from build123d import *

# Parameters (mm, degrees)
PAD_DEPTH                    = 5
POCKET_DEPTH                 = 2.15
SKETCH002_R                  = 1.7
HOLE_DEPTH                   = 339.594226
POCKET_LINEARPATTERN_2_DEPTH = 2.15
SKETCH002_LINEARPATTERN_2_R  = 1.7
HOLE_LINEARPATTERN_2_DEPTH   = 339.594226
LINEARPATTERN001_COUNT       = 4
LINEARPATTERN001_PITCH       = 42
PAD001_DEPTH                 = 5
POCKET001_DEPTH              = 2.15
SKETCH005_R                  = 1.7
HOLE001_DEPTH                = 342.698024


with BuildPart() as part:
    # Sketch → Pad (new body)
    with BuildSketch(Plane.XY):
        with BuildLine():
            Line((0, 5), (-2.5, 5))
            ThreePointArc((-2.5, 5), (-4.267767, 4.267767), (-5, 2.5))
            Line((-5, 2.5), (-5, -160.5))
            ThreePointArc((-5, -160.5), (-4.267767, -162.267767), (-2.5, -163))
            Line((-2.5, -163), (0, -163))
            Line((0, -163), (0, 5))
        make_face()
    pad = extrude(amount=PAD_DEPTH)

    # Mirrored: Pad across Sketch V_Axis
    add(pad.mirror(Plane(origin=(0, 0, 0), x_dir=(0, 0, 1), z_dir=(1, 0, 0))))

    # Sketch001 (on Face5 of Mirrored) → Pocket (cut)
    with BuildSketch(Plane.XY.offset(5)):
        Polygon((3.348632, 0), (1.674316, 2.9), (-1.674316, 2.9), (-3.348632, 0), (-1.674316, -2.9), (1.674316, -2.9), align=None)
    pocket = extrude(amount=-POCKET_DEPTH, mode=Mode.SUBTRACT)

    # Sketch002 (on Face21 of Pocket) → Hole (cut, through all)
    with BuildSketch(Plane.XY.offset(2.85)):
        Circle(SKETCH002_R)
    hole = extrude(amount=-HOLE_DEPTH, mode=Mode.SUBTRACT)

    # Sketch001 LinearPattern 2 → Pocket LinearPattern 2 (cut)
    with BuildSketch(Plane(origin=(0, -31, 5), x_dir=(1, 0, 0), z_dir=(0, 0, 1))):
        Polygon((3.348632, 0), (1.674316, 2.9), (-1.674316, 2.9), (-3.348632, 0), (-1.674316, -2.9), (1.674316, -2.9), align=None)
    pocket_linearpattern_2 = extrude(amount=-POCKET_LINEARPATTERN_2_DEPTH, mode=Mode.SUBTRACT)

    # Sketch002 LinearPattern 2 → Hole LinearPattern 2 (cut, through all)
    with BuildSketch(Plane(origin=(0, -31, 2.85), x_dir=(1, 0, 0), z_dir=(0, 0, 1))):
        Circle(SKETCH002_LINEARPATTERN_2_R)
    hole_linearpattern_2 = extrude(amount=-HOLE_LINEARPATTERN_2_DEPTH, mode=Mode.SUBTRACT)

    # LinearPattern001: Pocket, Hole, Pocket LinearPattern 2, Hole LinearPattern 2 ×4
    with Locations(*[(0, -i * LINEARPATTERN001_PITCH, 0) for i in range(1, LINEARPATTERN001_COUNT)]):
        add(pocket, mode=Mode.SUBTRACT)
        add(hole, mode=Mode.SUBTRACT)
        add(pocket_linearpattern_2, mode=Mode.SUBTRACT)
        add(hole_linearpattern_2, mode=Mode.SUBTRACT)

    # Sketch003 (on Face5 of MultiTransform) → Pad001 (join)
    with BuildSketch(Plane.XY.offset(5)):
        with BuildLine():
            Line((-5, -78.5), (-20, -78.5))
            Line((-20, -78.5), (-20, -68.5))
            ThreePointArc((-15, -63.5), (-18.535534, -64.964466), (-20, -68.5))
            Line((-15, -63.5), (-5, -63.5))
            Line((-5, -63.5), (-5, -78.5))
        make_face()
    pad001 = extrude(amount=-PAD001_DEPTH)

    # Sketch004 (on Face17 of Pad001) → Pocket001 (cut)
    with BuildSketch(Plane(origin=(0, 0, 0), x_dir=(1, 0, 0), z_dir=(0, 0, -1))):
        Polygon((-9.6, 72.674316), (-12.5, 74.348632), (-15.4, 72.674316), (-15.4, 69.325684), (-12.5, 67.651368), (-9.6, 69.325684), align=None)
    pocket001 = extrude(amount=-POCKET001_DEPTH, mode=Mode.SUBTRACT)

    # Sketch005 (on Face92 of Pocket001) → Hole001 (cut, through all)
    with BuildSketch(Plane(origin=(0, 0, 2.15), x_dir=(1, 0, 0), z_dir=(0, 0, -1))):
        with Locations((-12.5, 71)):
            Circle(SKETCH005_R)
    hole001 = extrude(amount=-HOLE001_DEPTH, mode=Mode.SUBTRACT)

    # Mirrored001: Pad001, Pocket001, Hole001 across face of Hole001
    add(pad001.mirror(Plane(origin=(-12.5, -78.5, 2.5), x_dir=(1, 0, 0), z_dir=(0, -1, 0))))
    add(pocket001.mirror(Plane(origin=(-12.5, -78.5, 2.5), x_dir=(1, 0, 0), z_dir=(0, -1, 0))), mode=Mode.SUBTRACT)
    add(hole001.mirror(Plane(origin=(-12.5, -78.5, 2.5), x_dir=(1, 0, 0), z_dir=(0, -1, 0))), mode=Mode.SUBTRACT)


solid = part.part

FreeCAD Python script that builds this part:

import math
import FreeCAD as App
import Part
import Sketcher
Q = App.Units.Quantity


def add_polygon(sketch, points):
    """Adds a closed chain of lines whose ends are joined by coincident constraints."""
    first, n = sketch.GeometryCount, len(points)
    for a, b in zip(points, points[1:] + points[:1]):
        sketch.addGeometry(Part.LineSegment(App.Vector(*a, 0), App.Vector(*b, 0)), False)
    for i in range(n):
        sketch.addConstraint(Sketcher.Constraint("Coincident", first + i, 2, first + (i + 1) % n, 1))

doc = App.newDocument("Part")
body = doc.addObject("PartDesign::Body", "Body")

sketch1 = doc.addObject("Sketcher::SketchObject", "Sketch")
body.addObject(sketch1)
sketch1.AttachmentSupport = (doc.XY_Plane, [""])
sketch1.MapMode = "FlatFace"
sketch1.addGeometry([
    Part.LineSegment(App.Vector(0, 5, 0), App.Vector(-2.5, 5, 0)),
    Part.ArcOfCircle(Part.Circle(App.Vector(-2.5, 2.5, 0), App.Vector(0, 0, 1), 2.5), math.radians(90), math.radians(180)),
    Part.LineSegment(App.Vector(-5, 2.5, 0), App.Vector(-5, -160.5, 0)),
    Part.ArcOfCircle(Part.Circle(App.Vector(-2.5, -160.5, 0), App.Vector(0, 0, 1), 2.5), math.radians(180), math.radians(270)),
    Part.LineSegment(App.Vector(-2.5, -163, 0), App.Vector(0, -163, 0)),
    Part.LineSegment(App.Vector(0, -163, 0), App.Vector(0, 5, 0)),
], False)
sketch1.addConstraint([
    Sketcher.Constraint("Tangent", 0, 2, 1, 1),
    Sketcher.Constraint("Tangent", 1, 2, 2, 1),
    Sketcher.Constraint("Tangent", 2, 2, 3, 1),
    Sketcher.Constraint("Tangent", 3, 2, 4, 1),
    Sketcher.Constraint("Coincident", 4, 2, 5, 1),
    Sketcher.Constraint("Coincident", 5, 2, 0, 1),
    Sketcher.Constraint("Horizontal", 0),
    Sketcher.Constraint("Vertical", 2),
    Sketcher.Constraint("Horizontal", 4),
    Sketcher.Constraint("Vertical", 5),
    Sketcher.Constraint("Equal", 1, 3),
    Sketcher.Constraint("PointOnObject", 4, 2, -2),
    Sketcher.Constraint("Radius", 1, Q("2.5 mm")),
    Sketcher.Constraint("DistanceY", 2, 2, 2, 1, Q("163 mm")),
    Sketcher.Constraint("DistanceX", 0, 2, 0, 1, Q("2.5 mm")),
    Sketcher.Constraint("DistanceY", -1, 1, 0, 2, Q("5 mm")),
])
pad1 = doc.addObject("PartDesign::Pad", "Pad")
body.addObject(pad1)
pad1.Profile = sketch1
pad1.Length = 5
doc.recompute()

mirrored = doc.addObject("PartDesign::Mirrored", "Mirrored")
body.addObject(mirrored)
mirrored.Originals = [pad1]
mirrored.MirrorPlane = (doc.YZ_Plane, [""])
body.Tip = mirrored

sketch2 = doc.addObject("Sketcher::SketchObject", "Sketch001")
body.addObject(sketch2)
sketch2.AttachmentSupport = (doc.XY_Plane, [""])
sketch2.MapMode = "FlatFace"
sketch2.AttachmentOffset = App.Placement(App.Vector(0, 0, 5), App.Rotation())
add_polygon(sketch2, [(3.3, 0), (1.7, 2.9), (-1.7, 2.9), (-3.3, 0), (-1.7, -2.9), (1.7, -2.9)])
sketch2.addConstraint([
    Sketcher.Constraint("Horizontal", 1),
    Sketcher.Constraint("Horizontal", 4),
    Sketcher.Constraint("Symmetric", 0, 2, 3, 2, -1, 1),
    Sketcher.Constraint("Symmetric", 2, 2, 5, 2, -1, 1),
    Sketcher.Constraint("PointOnObject", 2, 2, -1),
    Sketcher.Constraint("Parallel", 2, 5),
    Sketcher.Constraint("Vertical", 1, 2, 3, 2),
    Sketcher.Constraint("Angle", 0, Q("120.000003 deg")),
    Sketcher.Constraint("DistanceY", -1, 1, 0, 2, Q("2.9 mm")),
    Sketcher.Constraint("DistanceX", 1, 2, 1, 1, Q("3.348632 mm")),
])
pocket1 = doc.addObject("PartDesign::Pocket", "Pocket")
body.addObject(pocket1)
pocket1.Profile = sketch2
pocket1.Length = 2.15

sketch3 = doc.addObject("Sketcher::SketchObject", "Sketch002")
body.addObject(sketch3)
sketch3.AttachmentSupport = (doc.XY_Plane, [""])
sketch3.MapMode = "FlatFace"
sketch3.AttachmentOffset = App.Placement(App.Vector(0, 0, 2.85), App.Rotation())
sketch3.addGeometry(Part.Circle(App.Vector(0, 0, 0), App.Vector(0, 0, 1), 1.7), False)
sketch3.addConstraint([
    Sketcher.Constraint("Coincident", 0, 3, -1, 1),
    Sketcher.Constraint("Diameter", 0, Q("3.4 mm")),
])
pocket2 = doc.addObject("PartDesign::Pocket", "Pocket001")
body.addObject(pocket2)
pocket2.Profile = sketch3
pocket2.Type = "ThroughAll"

sketch4 = doc.addObject("Sketcher::SketchObject", "Sketch003")
body.addObject(sketch4)
sketch4.AttachmentSupport = (doc.XY_Plane, [""])
sketch4.MapMode = "FlatFace"
sketch4.AttachmentOffset = App.Placement(App.Vector(0, 0, 5), App.Rotation())
add_polygon(sketch4, [(3.3, -31), (1.7, -28.1), (-1.7, -28.1), (-3.3, -31), (-1.7, -33.9), (1.7, -33.9)])
sketch4.addConstraint([
    Sketcher.Constraint("Horizontal", 1),
    Sketcher.Constraint("Horizontal", 4),
    Sketcher.Constraint("Symmetric", 2, 2, 5, 2, -2),
    Sketcher.Constraint("Parallel", 0, 3),
    Sketcher.Constraint("Parallel", 2, 5),
    Sketcher.Constraint("Vertical", 1, 2, 3, 2),
    Sketcher.Constraint("Vertical", 0, 2, 4, 2),
    Sketcher.Constraint("Angle", 0, Q("120.000003 deg")),
    Sketcher.Constraint("DistanceY", 2, 2, -1, 1, Q("31 mm")),
    Sketcher.Constraint("DistanceY", 0, 2, -1, 1, Q("28.1 mm")),
    Sketcher.Constraint("DistanceX", 1, 2, 1, 1, Q("3.348632 mm")),
])
pocket3 = doc.addObject("PartDesign::Pocket", "Pocket002")
body.addObject(pocket3)
pocket3.Profile = sketch4
pocket3.Length = 2.15

sketch5 = doc.addObject("Sketcher::SketchObject", "Sketch004")
body.addObject(sketch5)
sketch5.AttachmentSupport = (doc.XY_Plane, [""])
sketch5.MapMode = "FlatFace"
sketch5.AttachmentOffset = App.Placement(App.Vector(0, 0, 2.85), App.Rotation())
sketch5.addGeometry(Part.Circle(App.Vector(0, -31, 0), App.Vector(0, 0, 1), 1.7), False)
sketch5.addConstraint([
    Sketcher.Constraint("PointOnObject", 0, 3, -2),
    Sketcher.Constraint("Diameter", 0, Q("3.4 mm")),
    Sketcher.Constraint("DistanceY", 0, 3, -1, 1, Q("31 mm")),
])
pocket4 = doc.addObject("PartDesign::Pocket", "Pocket003")
body.addObject(pocket4)
pocket4.Profile = sketch5
pocket4.Type = "ThroughAll"
doc.recompute()

linearpattern = doc.addObject("PartDesign::LinearPattern", "LinearPattern")
body.addObject(linearpattern)
linearpattern.Originals = [pocket1, pocket2, pocket3, pocket4]
linearpattern.Direction = (doc.Y_Axis, [""])
linearpattern.Mode = "offset"
linearpattern.Offset = 42
linearpattern.Occurrences = 4
linearpattern.Reversed = True
body.Tip = linearpattern

sketch6 = doc.addObject("Sketcher::SketchObject", "Sketch005")
body.addObject(sketch6)
sketch6.AttachmentSupport = (doc.XY_Plane, [""])
sketch6.MapMode = "FlatFace"
sketch6.AttachmentOffset = App.Placement(App.Vector(0, 0, 5), App.Rotation())
sketch6.addGeometry([
    Part.LineSegment(App.Vector(-20, -78.5, 0), App.Vector(-5, -78.5, 0)),
    Part.LineSegment(App.Vector(-5, -78.5, 0), App.Vector(-5, -63.5, 0)),
    Part.LineSegment(App.Vector(-5, -63.5, 0), App.Vector(-15, -63.5, 0)),
    Part.ArcOfCircle(Part.Circle(App.Vector(-15, -68.5, 0), App.Vector(0, 0, 1), 5), math.radians(90), math.radians(180)),
    Part.LineSegment(App.Vector(-20, -68.5, 0), App.Vector(-20, -78.5, 0)),
], False)
sketch6.addConstraint([
    Sketcher.Constraint("Coincident", 0, 2, 1, 1),
    Sketcher.Constraint("Coincident", 1, 2, 2, 1),
    Sketcher.Constraint("Tangent", 2, 2, 3, 1),
    Sketcher.Constraint("Tangent", 3, 2, 4, 1),
    Sketcher.Constraint("Coincident", 4, 2, 0, 1),
    Sketcher.Constraint("Horizontal", 0),
    Sketcher.Constraint("Vertical", 1),
    Sketcher.Constraint("Horizontal", 2),
    Sketcher.Constraint("Vertical", 4),
    Sketcher.Constraint("Equal", 0, 1),
    Sketcher.Constraint("Radius", 3, Q("5 mm")),
    Sketcher.Constraint("DistanceX", 0, 1, 0, 2, Q("15 mm")),
    Sketcher.Constraint("DistanceX", 3, 3, -1, 1, Q("15 mm")),
    Sketcher.Constraint("DistanceY", 3, 3, -1, 1, Q("68.5 mm")),
])
pad2 = doc.addObject("PartDesign::Pad", "Pad001")
body.addObject(pad2)
pad2.Profile = sketch6
pad2.Length = 5
pad2.Reversed = True

sketch7 = doc.addObject("Sketcher::SketchObject", "Sketch006")
body.addObject(sketch7)
sketch7.AttachmentSupport = (doc.XY_Plane, [""])
sketch7.MapMode = "FlatFace"
add_polygon(sketch7, [(-9.6, -72.7), (-12.5, -74.3), (-15.4, -72.7), (-15.4, -69.3), (-12.5, -67.7), (-9.6, -69.3)])
sketch7.addConstraint([
    Sketcher.Constraint("Vertical", 2),
    Sketcher.Constraint("Vertical", 5),
    Sketcher.Constraint("Parallel", 0, 3),
    Sketcher.Constraint("Parallel", 1, 4),
    Sketcher.Constraint("Horizontal", 2, 2, 4, 2),
    Sketcher.Constraint("Horizontal", 1, 2, 5, 2),
    Sketcher.Constraint("Vertical", 0, 2, 3, 2),
    Sketcher.Constraint("Angle", 0, Q("-149.999997 deg")),
    Sketcher.Constraint("DistanceX", 0, 2, -1, 1, Q("12.5 mm")),
    Sketcher.Constraint("DistanceX", 1, 2, -1, 1, Q("15.4 mm")),
    Sketcher.Constraint("DistanceY", 2, 1, 2, 2, Q("3.348632 mm")),
    Sketcher.Constraint("DistanceY", 0, 2, -1, 1, Q("74.348632 mm")),
])
pocket5 = doc.addObject("PartDesign::Pocket", "Pocket004")
body.addObject(pocket5)
pocket5.Profile = sketch7
pocket5.Length = 2.15
pocket5.Reversed = True

sketch8 = doc.addObject("Sketcher::SketchObject", "Sketch007")
body.addObject(sketch8)
sketch8.AttachmentSupport = (doc.XY_Plane, [""])
sketch8.MapMode = "FlatFace"
sketch8.AttachmentOffset = App.Placement(App.Vector(0, 0, 2.15), App.Rotation())
sketch8.addGeometry(Part.Circle(App.Vector(-12.5, -71, 0), App.Vector(0, 0, 1), 1.7), False)
sketch8.addConstraint([
    Sketcher.Constraint("Diameter", 0, Q("3.4 mm")),
    Sketcher.Constraint("DistanceY", 0, 3, -1, 1, Q("71 mm")),
    Sketcher.Constraint("DistanceX", 0, 3, -1, 1, Q("12.5 mm")),
])
pocket6 = doc.addObject("PartDesign::Pocket", "Pocket005")
body.addObject(pocket6)
pocket6.Profile = sketch8
pocket6.Type = "ThroughAll"
pocket6.Reversed = True
doc.recompute()

datumplane = doc.addObject("PartDesign::Plane", "DatumPlane")
body.addObject(datumplane)
datumplane.AttachmentSupport = (doc.XZ_Plane, [""])
datumplane.MapMode = "FlatFace"
datumplane.AttachmentOffset = App.Placement(App.Vector(0, 0, 78.5), App.Rotation())
mirrored2 = doc.addObject("PartDesign::Mirrored", "Mirrored001")
body.addObject(mirrored2)
mirrored2.Originals = [pad2, pocket5, pocket6]
mirrored2.MirrorPlane = (datumplane, [""])
body.Tip = mirrored2

doc.recompute()
